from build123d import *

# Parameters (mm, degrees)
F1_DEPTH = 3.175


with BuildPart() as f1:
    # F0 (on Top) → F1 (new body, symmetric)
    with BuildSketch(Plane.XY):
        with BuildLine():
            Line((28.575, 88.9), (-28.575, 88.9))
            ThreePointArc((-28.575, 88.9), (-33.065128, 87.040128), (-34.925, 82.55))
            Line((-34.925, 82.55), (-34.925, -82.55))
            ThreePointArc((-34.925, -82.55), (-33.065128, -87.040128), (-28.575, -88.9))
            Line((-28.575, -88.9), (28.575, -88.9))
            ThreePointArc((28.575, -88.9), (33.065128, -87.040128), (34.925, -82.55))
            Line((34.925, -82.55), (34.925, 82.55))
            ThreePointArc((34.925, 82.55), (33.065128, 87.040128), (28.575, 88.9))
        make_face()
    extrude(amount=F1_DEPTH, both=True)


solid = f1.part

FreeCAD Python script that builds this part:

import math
import FreeCAD as App
import Part
import Sketcher

V = App.Vector
Q = App.Units.Quantity

doc = App.newDocument("Part")
params = doc.addObject("Spreadsheet::Sheet", "Params")
for row, (alias, value) in enumerate([
    ("sketch1_radius", "0.25 in"),
    ("sketch1_height", "6.5 in"),
    ("sketch1_width", "2.25 in"),
    ("pad1_length", "0.25 in"),
], start=1):
    params.set(f"A{row}", alias)
    params.set(f"B{row}", "=" + value)
    params.setAlias(f"B{row}", alias)

body = doc.addObject("PartDesign::Body", "Body")

sketch1 = doc.addObject("Sketcher::SketchObject", "Sketch")
body.addObject(sketch1)
sketch1.AttachmentSupport = (doc.XY_Plane, [""])
sketch1.MapMode = "FlatFace"
sketch1.addGeometry([
    Part.LineSegment(V(28.575, 88.9, 0), V(-28.575, 88.9, 0)),
    Part.ArcOfCircle(Part.Circle(V(-28.575, 82.55, 0), V(0, 0, 1), 6.35), math.radians(90.000002), math.radians(179.999998)),
    Part.LineSegment(V(-34.925, 82.55, 0), V(-34.925, -82.55, 0)),
    Part.ArcOfCircle(Part.Circle(V(-28.575, -82.55, 0), V(0, 0, 1), 6.35), math.radians(-179.999998), math.radians(-90.000002)),
    Part.LineSegment(V(-28.575, -88.9, 0), V(28.575, -88.9, 0)),
    Part.ArcOfCircle(Part.Circle(V(28.575, -82.55, 0), V(0, 0, 1), 6.35), math.radians(-89.999998), math.radians(-0.000002)),
    Part.LineSegment(V(34.925, -82.55, 0), V(34.925, 82.55, 0)),
    Part.ArcOfCircle(Part.Circle(V(28.575, 82.55, 0), V(0, 0, 1), 6.35), math.radians(0.000002), math.radians(89.999998)),
], False)
sketch1.addConstraint([
    Sketcher.Constraint("Tangent", 0, 2, 1, 1),
    Sketcher.Constraint("Tangent", 1, 2, 2, 1),
    Sketcher.Constraint("Tangent", 2, 2, 3, 1),
    Sketcher.Constraint("Tangent", 3, 2, 4, 1),
    Sketcher.Constraint("Tangent", 4, 2, 5, 1),
    Sketcher.Constraint("Tangent", 5, 2, 6, 1),
    Sketcher.Constraint("Tangent", 6, 2, 7, 1),
    Sketcher.Constraint("Tangent", 7, 2, 0, 1),
    Sketcher.Constraint("Horizontal", 0),
    Sketcher.Constraint("Vertical", 2),
    Sketcher.Constraint("Horizontal", 4),
    Sketcher.Constraint("Vertical", 6),
    Sketcher.Constraint("Equal", 1, 3),
    Sketcher.Constraint("Equal", 3, 5),
    Sketcher.Constraint("Equal", 5, 7),
    Sketcher.Constraint("Symmetric", 1, 3, 5, 3, -1, 1),
    Sketcher.Constraint("Radius", 1, Q("0.25 in")),
    Sketcher.Constraint("DistanceY", 2, 2, 2, 1, Q("6.5 in")),
    Sketcher.Constraint("DistanceX", 0, 2, 0, 1, Q("2.25 in")),
])
sketch1.setExpression("Constraints[16]", "Params.sketch1_radius")
sketch1.setExpression("Constraints[17]", "Params.sketch1_height")
sketch1.setExpression("Constraints[18]", "Params.sketch1_width")
pad1 = doc.addObject("PartDesign::Pad", "Pad")
body.addObject(pad1)
pad1.Profile = sketch1
pad1.setExpression("Length", "Params.pad1_length")
pad1.Midplane = True

doc.recompute()
